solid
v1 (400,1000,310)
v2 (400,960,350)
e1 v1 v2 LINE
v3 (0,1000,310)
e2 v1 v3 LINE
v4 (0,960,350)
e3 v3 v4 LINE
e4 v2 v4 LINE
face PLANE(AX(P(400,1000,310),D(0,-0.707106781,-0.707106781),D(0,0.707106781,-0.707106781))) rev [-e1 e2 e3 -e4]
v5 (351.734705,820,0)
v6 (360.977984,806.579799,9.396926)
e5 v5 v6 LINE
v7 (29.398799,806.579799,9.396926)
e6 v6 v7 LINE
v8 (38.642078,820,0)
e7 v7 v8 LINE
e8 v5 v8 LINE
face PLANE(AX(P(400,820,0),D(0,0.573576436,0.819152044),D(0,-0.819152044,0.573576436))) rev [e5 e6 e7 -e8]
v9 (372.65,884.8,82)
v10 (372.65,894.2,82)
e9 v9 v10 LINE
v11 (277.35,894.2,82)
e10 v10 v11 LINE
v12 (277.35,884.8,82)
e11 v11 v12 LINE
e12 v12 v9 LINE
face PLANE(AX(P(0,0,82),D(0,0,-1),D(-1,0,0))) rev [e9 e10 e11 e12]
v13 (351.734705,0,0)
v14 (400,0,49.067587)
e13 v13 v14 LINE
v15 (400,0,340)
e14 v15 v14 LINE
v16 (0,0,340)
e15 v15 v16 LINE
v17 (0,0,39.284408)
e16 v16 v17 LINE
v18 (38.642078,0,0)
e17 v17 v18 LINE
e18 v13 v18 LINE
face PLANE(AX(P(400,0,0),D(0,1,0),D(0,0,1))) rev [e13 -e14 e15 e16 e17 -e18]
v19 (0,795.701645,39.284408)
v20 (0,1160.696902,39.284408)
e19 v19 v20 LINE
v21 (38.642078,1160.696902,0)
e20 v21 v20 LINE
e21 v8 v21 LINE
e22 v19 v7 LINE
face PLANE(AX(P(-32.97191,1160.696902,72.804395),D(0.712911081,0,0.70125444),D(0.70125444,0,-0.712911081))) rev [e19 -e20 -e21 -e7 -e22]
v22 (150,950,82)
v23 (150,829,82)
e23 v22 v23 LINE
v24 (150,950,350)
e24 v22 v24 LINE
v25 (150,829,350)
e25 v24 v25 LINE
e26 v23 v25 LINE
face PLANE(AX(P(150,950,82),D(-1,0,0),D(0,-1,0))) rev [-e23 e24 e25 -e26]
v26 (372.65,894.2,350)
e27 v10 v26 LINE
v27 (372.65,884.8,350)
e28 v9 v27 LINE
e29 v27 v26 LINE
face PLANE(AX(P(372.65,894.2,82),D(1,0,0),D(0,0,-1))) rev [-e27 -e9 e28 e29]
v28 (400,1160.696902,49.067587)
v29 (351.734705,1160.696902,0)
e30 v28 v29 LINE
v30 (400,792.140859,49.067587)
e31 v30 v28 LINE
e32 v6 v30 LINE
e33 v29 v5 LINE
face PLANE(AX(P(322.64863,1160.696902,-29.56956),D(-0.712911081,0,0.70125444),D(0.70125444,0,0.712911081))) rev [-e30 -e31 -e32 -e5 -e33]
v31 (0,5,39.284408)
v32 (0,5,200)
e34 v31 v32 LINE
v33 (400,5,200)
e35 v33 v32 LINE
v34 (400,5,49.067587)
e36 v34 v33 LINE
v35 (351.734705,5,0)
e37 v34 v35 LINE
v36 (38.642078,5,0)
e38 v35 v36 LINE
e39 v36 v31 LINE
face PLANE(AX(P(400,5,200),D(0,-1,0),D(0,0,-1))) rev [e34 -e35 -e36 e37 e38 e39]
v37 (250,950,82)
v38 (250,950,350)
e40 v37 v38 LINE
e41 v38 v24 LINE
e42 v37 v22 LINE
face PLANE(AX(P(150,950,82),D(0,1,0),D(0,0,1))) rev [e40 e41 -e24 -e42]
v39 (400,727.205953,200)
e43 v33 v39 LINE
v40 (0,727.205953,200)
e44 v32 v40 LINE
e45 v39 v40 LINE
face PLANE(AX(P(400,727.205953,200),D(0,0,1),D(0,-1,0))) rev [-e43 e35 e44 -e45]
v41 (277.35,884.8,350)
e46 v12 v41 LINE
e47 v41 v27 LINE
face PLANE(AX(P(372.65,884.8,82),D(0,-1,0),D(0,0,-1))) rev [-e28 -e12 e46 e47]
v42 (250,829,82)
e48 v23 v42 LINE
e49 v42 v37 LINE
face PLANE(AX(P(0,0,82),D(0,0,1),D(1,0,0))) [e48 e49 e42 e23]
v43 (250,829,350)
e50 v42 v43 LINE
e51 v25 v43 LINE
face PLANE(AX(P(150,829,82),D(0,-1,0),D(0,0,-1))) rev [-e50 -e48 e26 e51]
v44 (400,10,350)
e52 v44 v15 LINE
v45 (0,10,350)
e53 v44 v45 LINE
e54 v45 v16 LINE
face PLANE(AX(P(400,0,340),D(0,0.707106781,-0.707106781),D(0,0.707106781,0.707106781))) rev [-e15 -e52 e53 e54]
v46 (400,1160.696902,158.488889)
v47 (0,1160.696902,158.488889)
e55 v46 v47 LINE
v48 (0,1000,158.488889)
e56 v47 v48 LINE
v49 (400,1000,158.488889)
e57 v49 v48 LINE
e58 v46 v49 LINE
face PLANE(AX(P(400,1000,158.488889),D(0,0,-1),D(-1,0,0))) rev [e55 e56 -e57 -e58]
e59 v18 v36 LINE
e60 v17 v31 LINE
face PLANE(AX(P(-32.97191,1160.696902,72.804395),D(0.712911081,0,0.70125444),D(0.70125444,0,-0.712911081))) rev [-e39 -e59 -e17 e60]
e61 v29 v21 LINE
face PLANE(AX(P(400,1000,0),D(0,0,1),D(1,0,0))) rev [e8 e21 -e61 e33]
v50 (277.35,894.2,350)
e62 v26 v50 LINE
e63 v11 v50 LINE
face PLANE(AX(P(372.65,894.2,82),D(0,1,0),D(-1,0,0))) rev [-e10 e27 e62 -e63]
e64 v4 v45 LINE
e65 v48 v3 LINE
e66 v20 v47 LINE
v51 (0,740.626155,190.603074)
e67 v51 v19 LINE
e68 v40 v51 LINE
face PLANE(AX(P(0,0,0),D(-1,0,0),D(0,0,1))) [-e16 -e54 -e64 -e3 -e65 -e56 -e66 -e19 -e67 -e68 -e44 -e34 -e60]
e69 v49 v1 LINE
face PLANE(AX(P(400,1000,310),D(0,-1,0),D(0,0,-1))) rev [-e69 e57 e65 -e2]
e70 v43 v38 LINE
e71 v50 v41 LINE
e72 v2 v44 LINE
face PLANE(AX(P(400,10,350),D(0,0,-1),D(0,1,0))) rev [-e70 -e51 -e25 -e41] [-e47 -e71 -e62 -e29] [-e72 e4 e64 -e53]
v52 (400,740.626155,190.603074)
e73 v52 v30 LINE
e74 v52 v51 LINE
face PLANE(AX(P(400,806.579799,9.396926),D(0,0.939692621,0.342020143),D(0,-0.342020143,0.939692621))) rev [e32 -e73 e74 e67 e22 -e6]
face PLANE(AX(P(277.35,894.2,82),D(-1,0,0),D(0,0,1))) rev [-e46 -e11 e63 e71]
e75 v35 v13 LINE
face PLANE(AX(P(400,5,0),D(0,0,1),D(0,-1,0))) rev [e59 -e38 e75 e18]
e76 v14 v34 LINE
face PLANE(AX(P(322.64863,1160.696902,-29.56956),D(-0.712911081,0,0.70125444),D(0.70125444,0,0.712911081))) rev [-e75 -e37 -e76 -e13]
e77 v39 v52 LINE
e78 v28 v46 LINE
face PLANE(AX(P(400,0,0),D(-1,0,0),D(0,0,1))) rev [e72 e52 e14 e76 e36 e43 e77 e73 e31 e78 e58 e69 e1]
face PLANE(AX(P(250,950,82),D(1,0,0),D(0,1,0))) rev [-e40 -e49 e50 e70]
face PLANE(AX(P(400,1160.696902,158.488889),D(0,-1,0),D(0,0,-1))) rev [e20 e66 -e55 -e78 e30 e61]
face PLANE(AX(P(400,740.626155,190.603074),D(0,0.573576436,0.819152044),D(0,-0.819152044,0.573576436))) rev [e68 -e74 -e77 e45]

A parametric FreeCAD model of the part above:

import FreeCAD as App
import Part
import Sketcher

V = App.Vector
Q = App.Units.Quantity

doc = App.newDocument("Part")
body = doc.addObject("PartDesign::Body", "Body")

sketch1 = doc.addObject("Sketcher::SketchObject", "Sketch")
body.addObject(sketch1)
sketch1.AttachmentSupport = (doc.YZ_Plane, [""])
sketch1.MapMode = "FlatFace"
sketch1.addGeometry(Part.LineSegment(V(0, 340, 0), V(0, 0, 0)), False)
sketch1.addGeometry(Part.LineSegment(V(0, 0, 0), V(5, 0, 0)), False)
sketch1.addGeometry(Part.LineSegment(V(5, 0, 0), V(5, 200, 0)), False)
sketch1.addGeometry(Part.LineSegment(V(5, 200, 0), V(727, 200, 0)), False)
sketch1.addGeometry(Part.LineSegment(V(727, 200, 0), V(741, 191, 0)), False)
sketch1.addGeometry(Part.LineSegment(V(741, 191, 0), V(800, 27, 0)), False)
sketch1.addGeometry(Part.LineSegment(V(800, 27, 0), V(807, 9, 0)), False)
sketch1.addGeometry(Part.LineSegment(V(807, 9, 0), V(820, 0, 0)), False)
sketch1.addGeometry(Part.LineSegment(V(820, 0, 0), V(1161, 0, 0)), False)
sketch1.addGeometry(Part.LineSegment(V(1161, 0, 0), V(1161, 158, 0)), False)
sketch1.addGeometry(Part.LineSegment(V(1161, 158, 0), V(1000, 158, 0)), False)
sketch1.addGeometry(Part.LineSegment(V(1000, 158, 0), V(1000, 310, 0)), False)
sketch1.addGeometry(Part.LineSegment(V(1000, 310, 0), V(960, 350, 0)), False)
sketch1.addGeometry(Part.LineSegment(V(960, 350, 0), V(10, 350, 0)), False)
sketch1.addGeometry(Part.LineSegment(V(10, 350, 0), V(0, 340, 0)), False)
sketch1.addConstraint(Sketcher.Constraint("Coincident", 0, 2, 1, 1))
sketch1.addConstraint(Sketcher.Constraint("Coincident", 1, 2, 2, 1))
sketch1.addConstraint(Sketcher.Constraint("Coincident", 2, 2, 3, 1))
sketch1.addConstraint(Sketcher.Constraint("Coincident", 3, 2, 4, 1))
sketch1.addConstraint(Sketcher.Constraint("Coincident", 4, 2, 5, 1))
sketch1.addConstraint(Sketcher.Constraint("Coincident", 5, 2, 6, 1))
sketch1.addConstraint(Sketcher.Constraint("Coincident", 6, 2, 7, 1))
sketch1.addConstraint(Sketcher.Constraint("Coincident", 7, 2, 8, 1))
sketch1.addConstraint(Sketcher.Constraint("Coincident", 8, 2, 9, 1))
sketch1.addConstraint(Sketcher.Constraint("Coincident", 9, 2, 10, 1))
sketch1.addConstraint(Sketcher.Constraint("Coincident", 10, 2, 11, 1))
sketch1.addConstraint(Sketcher.Constraint("Coincident", 11, 2, 12, 1))
sketch1.addConstraint(Sketcher.Constraint("Coincident", 12, 2, 13, 1))
sketch1.addConstraint(Sketcher.Constraint("Coincident", 13, 2, 14, 1))
sketch1.addConstraint(Sketcher.Constraint("Coincident", 14, 2, 0, 1))
sketch1.addConstraint(Sketcher.Constraint("Vertical", 0))
sketch1.addConstraint(Sketcher.Constraint("Horizontal", 1))
sketch1.addConstraint(Sketcher.Constraint("Vertical", 2))
sketch1.addConstraint(Sketcher.Constraint("Horizontal", 3))
sketch1.addConstraint(Sketcher.Constraint("Horizontal", 8))
sketch1.addConstraint(Sketcher.Constraint("Vertical", 9))
sketch1.addConstraint(Sketcher.Constraint("Horizontal", 10))
sketch1.addConstraint(Sketcher.Constraint("Vertical", 11))
sketch1.addConstraint(Sketcher.Constraint("Horizontal", 13))
sketch1.addConstraint(Sketcher.Constraint("Coincident", 0, 2, -1, 1))
sketch1.addConstraint(Sketcher.Constraint("PointOnObject", 7, 2, -1))
sketch1.addConstraint(Sketcher.Constraint("Parallel", 5, 6))
sketch1.addConstraint(Sketcher.Constraint("Parallel", 4, 7))
sketch1.addConstraint(Sketcher.Constraint("Perpendicular", 12, 14))
sketch1.addConstraint(Sketcher.Constraint("Equal", 4, 7))
sketch1.addConstraint(Sketcher.Constraint("DistanceX", 1, 1, 1, 2, Q("5 mm")))
sketch1.addConstraint(Sketcher.Constraint("DistanceX", 13, 2, 13, 1, Q("950 mm")))
sketch1.addConstraint(Sketcher.Constraint("DistanceY", 0, 2, 0, 1, Q("340 mm")))
sketch1.addConstraint(Sketcher.Constraint("DistanceY", 2, 1, 2, 2, Q("200 mm")))
sketch1.addConstraint(Sketcher.Constraint("Angle", 4, Q("-35 deg")))
sketch1.addConstraint(Sketcher.Constraint("Angle", 5, Q("-70 deg")))
sketch1.addConstraint(Sketcher.Constraint("Angle", 12, Q("135 deg")))
sketch1.addConstraint(Sketcher.Constraint("DistanceX", -1, 1, 5, 2, Q("800 mm")))
sketch1.addConstraint(Sketcher.Constraint("DistanceX", -1, 1, 7, 2, Q("820 mm")))
sketch1.addConstraint(Sketcher.Constraint("DistanceX", -1, 1, 10, 2, Q("1000 mm")))
sketch1.addConstraint(Sketcher.Constraint("DistanceY", -1, 1, 11, 2, Q("310 mm")))
sketch1.addConstraint(Sketcher.Constraint("DistanceY", 9, 1, 9, 2, Q("158.488889 mm")))
sketch1.addConstraint(Sketcher.Constraint("DistanceX", -1, 1, 6, 2, Q("806.579799 mm")))
sketch1.addConstraint(Sketcher.Constraint("DistanceX", 8, 1, 8, 2, Q("340.696902 mm")))
pad1 = doc.addObject("PartDesign::Pad", "Pad")
body.addObject(pad1)
pad1.Profile = sketch1
pad1.Length = 400

sketch2 = doc.addObject("Sketcher::SketchObject", "Sketch001")
body.addObject(sketch2)
sketch2.AttachmentSupport = (doc.XY_Plane, [""])
sketch2.MapMode = "FlatFace"
sketch2.AttachmentOffset = App.Placement(V(0, 0, 350), App.Rotation())
sketch2.addGeometry(Part.LineSegment(V(150, 950, 0), V(150, 829, 0)), False)
sketch2.addGeometry(Part.LineSegment(V(150, 829, 0), V(250, 829, 0)), False)
sketch2.addGeometry(Part.LineSegment(V(250, 829, 0), V(250, 950, 0)), False)
sketch2.addGeometry(Part.LineSegment(V(250, 950, 0), V(150, 950, 0)), False)
sketch2.addGeometry(Part.LineSegment(V(277, 894, 0), V(277, 885, 0)), False)
sketch2.addGeometry(Part.LineSegment(V(277, 885, 0), V(373, 885, 0)), False)
sketch2.addGeometry(Part.LineSegment(V(373, 885, 0), V(373, 894, 0)), False)
sketch2.addGeometry(Part.LineSegment(V(373, 894, 0), V(277, 894, 0)), False)
sketch2.addConstraint(Sketcher.Constraint("Coincident", 0, 2, 1, 1))
sketch2.addConstraint(Sketcher.Constraint("Coincident", 1, 2, 2, 1))
sketch2.addConstraint(Sketcher.Constraint("Coincident", 2, 2, 3, 1))
sketch2.addConstraint(Sketcher.Constraint("Coincident", 3, 2, 0, 1))
sketch2.addConstraint(Sketcher.Constraint("Coincident", 4, 2, 5, 1))
sketch2.addConstraint(Sketcher.Constraint("Coincident", 5, 2, 6, 1))
sketch2.addConstraint(Sketcher.Constraint("Coincident", 6, 2, 7, 1))
sketch2.addConstraint(Sketcher.Constraint("Coincident", 7, 2, 4, 1))
sketch2.addConstraint(Sketcher.Constraint("Vertical", 0))
sketch2.addConstraint(Sketcher.Constraint("Horizontal", 1))
sketch2.addConstraint(Sketcher.Constraint("Vertical", 2))
sketch2.addConstraint(Sketcher.Constraint("Horizontal", 3))
sketch2.addConstraint(Sketcher.Constraint("Vertical", 4))
sketch2.addConstraint(Sketcher.Constraint("Horizontal", 5))
sketch2.addConstraint(Sketcher.Constraint("Vertical", 6))
sketch2.addConstraint(Sketcher.Constraint("Horizontal", 7))
sketch2.addConstraint(Sketcher.Constraint("DistanceX", 1, 1, 1, 2, Q("100 mm")))
sketch2.addConstraint(Sketcher.Constraint("DistanceY", 0, 2, 0, 1, Q("121 mm")))
sketch2.addConstraint(Sketcher.Constraint("DistanceX", 5, 1, 5, 2, Q("95.3 mm")))
sketch2.addConstraint(Sketcher.Constraint("DistanceY", 4, 2, 4, 1, Q("9.4 mm")))
sketch2.addConstraint(Sketcher.Constraint("DistanceX", -1, 1, 0, 2, Q("150 mm")))
sketch2.addConstraint(Sketcher.Constraint("DistanceY", -1, 1, 0, 2, Q("829 mm")))
sketch2.addConstraint(Sketcher.Constraint("DistanceY", -1, 1, 4, 2, Q("884.8 mm")))
sketch2.addConstraint(Sketcher.Constraint("DistanceX", -1, 1, 4, 2, Q("277.35 mm")))
pocket1 = doc.addObject("PartDesign::Pocket", "Pocket")
body.addObject(pocket1)
pocket1.Profile = sketch2
pocket1.Length = 268

sketch3 = doc.addObject("Sketcher::SketchObject", "Sketch002")
body.addObject(sketch3)
sketch3.AttachmentSupport = (doc.XZ_Plane, [""])
sketch3.MapMode = "FlatFace"
sketch3.addGeometry(Part.LineSegment(V(68, -30, 0), V(-33, 73, 0)), False)
sketch3.addGeometry(Part.LineSegment(V(-33, 73, 0), V(-33, -100, 0)), False)
sketch3.addGeometry(Part.LineSegment(V(-33, -100, 0), V(423, -100, 0)), False)
sketch3.addGeometry(Part.LineSegment(V(423, -100, 0), V(423, 73, 0)), False)
sketch3.addGeometry(Part.LineSegment(V(423, 73, 0), V(323, -30, 0)), False)
sketch3.addGeometry(Part.LineSegment(V(323, -30, 0), V(68, -30, 0)), False)
sketch3.addConstraint(Sketcher.Constraint("Coincident", 0, 2, 1, 1))
sketch3.addConstraint(Sketcher.Constraint("Coincident", 1, 2, 2, 1))
sketch3.addConstraint(Sketcher.Constraint("Coincident", 2, 2, 3, 1))
sketch3.addConstraint(Sketcher.Constraint("Coincident", 3, 2, 4, 1))
sketch3.addConstraint(Sketcher.Constraint("Coincident", 4, 2, 5, 1))
sketch3.addConstraint(Sketcher.Constraint("Coincident", 5, 2, 0, 1))
sketch3.addConstraint(Sketcher.Constraint("Vertical", 1))
sketch3.addConstraint(Sketcher.Constraint("Horizontal", 2))
sketch3.addConstraint(Sketcher.Constraint("Vertical", 3))
sketch3.addConstraint(Sketcher.Constraint("Horizontal", 5))
sketch3.addConstraint(Sketcher.Constraint("Horizontal", 0, 2, 3, 2))
sketch3.addConstraint(Sketcher.Constraint("Equal", 0, 4))
sketch3.addConstraint(Sketcher.Constraint("DistanceX", 2, 1, 2, 2, Q("456.320603 mm")))
sketch3.addConstraint(Sketcher.Constraint("DistanceX", 5, 2, 5, 1, Q("254.920476 mm")))
sketch3.addConstraint(Sketcher.Constraint("DistanceY", 1, 2, 1, 1, Q("172.873927 mm")))
sketch3.addConstraint(Sketcher.Constraint("DistanceX", 0, 2, -1, 1, Q("32.97191 mm")))
sketch3.addConstraint(Sketcher.Constraint("DistanceY", 1, 2, -1, 1, Q("100.069532 mm")))
sketch3.addConstraint(Sketcher.Constraint("DistanceY", 4, 2, -1, 1, Q("29.56956 mm")))
pocket2 = doc.addObject("PartDesign::Pocket", "Pocket001")
body.addObject(pocket2)
pocket2.Profile = sketch3
pocket2.Type = "ThroughAll"
pocket2.Midplane = True

doc.recompute()
